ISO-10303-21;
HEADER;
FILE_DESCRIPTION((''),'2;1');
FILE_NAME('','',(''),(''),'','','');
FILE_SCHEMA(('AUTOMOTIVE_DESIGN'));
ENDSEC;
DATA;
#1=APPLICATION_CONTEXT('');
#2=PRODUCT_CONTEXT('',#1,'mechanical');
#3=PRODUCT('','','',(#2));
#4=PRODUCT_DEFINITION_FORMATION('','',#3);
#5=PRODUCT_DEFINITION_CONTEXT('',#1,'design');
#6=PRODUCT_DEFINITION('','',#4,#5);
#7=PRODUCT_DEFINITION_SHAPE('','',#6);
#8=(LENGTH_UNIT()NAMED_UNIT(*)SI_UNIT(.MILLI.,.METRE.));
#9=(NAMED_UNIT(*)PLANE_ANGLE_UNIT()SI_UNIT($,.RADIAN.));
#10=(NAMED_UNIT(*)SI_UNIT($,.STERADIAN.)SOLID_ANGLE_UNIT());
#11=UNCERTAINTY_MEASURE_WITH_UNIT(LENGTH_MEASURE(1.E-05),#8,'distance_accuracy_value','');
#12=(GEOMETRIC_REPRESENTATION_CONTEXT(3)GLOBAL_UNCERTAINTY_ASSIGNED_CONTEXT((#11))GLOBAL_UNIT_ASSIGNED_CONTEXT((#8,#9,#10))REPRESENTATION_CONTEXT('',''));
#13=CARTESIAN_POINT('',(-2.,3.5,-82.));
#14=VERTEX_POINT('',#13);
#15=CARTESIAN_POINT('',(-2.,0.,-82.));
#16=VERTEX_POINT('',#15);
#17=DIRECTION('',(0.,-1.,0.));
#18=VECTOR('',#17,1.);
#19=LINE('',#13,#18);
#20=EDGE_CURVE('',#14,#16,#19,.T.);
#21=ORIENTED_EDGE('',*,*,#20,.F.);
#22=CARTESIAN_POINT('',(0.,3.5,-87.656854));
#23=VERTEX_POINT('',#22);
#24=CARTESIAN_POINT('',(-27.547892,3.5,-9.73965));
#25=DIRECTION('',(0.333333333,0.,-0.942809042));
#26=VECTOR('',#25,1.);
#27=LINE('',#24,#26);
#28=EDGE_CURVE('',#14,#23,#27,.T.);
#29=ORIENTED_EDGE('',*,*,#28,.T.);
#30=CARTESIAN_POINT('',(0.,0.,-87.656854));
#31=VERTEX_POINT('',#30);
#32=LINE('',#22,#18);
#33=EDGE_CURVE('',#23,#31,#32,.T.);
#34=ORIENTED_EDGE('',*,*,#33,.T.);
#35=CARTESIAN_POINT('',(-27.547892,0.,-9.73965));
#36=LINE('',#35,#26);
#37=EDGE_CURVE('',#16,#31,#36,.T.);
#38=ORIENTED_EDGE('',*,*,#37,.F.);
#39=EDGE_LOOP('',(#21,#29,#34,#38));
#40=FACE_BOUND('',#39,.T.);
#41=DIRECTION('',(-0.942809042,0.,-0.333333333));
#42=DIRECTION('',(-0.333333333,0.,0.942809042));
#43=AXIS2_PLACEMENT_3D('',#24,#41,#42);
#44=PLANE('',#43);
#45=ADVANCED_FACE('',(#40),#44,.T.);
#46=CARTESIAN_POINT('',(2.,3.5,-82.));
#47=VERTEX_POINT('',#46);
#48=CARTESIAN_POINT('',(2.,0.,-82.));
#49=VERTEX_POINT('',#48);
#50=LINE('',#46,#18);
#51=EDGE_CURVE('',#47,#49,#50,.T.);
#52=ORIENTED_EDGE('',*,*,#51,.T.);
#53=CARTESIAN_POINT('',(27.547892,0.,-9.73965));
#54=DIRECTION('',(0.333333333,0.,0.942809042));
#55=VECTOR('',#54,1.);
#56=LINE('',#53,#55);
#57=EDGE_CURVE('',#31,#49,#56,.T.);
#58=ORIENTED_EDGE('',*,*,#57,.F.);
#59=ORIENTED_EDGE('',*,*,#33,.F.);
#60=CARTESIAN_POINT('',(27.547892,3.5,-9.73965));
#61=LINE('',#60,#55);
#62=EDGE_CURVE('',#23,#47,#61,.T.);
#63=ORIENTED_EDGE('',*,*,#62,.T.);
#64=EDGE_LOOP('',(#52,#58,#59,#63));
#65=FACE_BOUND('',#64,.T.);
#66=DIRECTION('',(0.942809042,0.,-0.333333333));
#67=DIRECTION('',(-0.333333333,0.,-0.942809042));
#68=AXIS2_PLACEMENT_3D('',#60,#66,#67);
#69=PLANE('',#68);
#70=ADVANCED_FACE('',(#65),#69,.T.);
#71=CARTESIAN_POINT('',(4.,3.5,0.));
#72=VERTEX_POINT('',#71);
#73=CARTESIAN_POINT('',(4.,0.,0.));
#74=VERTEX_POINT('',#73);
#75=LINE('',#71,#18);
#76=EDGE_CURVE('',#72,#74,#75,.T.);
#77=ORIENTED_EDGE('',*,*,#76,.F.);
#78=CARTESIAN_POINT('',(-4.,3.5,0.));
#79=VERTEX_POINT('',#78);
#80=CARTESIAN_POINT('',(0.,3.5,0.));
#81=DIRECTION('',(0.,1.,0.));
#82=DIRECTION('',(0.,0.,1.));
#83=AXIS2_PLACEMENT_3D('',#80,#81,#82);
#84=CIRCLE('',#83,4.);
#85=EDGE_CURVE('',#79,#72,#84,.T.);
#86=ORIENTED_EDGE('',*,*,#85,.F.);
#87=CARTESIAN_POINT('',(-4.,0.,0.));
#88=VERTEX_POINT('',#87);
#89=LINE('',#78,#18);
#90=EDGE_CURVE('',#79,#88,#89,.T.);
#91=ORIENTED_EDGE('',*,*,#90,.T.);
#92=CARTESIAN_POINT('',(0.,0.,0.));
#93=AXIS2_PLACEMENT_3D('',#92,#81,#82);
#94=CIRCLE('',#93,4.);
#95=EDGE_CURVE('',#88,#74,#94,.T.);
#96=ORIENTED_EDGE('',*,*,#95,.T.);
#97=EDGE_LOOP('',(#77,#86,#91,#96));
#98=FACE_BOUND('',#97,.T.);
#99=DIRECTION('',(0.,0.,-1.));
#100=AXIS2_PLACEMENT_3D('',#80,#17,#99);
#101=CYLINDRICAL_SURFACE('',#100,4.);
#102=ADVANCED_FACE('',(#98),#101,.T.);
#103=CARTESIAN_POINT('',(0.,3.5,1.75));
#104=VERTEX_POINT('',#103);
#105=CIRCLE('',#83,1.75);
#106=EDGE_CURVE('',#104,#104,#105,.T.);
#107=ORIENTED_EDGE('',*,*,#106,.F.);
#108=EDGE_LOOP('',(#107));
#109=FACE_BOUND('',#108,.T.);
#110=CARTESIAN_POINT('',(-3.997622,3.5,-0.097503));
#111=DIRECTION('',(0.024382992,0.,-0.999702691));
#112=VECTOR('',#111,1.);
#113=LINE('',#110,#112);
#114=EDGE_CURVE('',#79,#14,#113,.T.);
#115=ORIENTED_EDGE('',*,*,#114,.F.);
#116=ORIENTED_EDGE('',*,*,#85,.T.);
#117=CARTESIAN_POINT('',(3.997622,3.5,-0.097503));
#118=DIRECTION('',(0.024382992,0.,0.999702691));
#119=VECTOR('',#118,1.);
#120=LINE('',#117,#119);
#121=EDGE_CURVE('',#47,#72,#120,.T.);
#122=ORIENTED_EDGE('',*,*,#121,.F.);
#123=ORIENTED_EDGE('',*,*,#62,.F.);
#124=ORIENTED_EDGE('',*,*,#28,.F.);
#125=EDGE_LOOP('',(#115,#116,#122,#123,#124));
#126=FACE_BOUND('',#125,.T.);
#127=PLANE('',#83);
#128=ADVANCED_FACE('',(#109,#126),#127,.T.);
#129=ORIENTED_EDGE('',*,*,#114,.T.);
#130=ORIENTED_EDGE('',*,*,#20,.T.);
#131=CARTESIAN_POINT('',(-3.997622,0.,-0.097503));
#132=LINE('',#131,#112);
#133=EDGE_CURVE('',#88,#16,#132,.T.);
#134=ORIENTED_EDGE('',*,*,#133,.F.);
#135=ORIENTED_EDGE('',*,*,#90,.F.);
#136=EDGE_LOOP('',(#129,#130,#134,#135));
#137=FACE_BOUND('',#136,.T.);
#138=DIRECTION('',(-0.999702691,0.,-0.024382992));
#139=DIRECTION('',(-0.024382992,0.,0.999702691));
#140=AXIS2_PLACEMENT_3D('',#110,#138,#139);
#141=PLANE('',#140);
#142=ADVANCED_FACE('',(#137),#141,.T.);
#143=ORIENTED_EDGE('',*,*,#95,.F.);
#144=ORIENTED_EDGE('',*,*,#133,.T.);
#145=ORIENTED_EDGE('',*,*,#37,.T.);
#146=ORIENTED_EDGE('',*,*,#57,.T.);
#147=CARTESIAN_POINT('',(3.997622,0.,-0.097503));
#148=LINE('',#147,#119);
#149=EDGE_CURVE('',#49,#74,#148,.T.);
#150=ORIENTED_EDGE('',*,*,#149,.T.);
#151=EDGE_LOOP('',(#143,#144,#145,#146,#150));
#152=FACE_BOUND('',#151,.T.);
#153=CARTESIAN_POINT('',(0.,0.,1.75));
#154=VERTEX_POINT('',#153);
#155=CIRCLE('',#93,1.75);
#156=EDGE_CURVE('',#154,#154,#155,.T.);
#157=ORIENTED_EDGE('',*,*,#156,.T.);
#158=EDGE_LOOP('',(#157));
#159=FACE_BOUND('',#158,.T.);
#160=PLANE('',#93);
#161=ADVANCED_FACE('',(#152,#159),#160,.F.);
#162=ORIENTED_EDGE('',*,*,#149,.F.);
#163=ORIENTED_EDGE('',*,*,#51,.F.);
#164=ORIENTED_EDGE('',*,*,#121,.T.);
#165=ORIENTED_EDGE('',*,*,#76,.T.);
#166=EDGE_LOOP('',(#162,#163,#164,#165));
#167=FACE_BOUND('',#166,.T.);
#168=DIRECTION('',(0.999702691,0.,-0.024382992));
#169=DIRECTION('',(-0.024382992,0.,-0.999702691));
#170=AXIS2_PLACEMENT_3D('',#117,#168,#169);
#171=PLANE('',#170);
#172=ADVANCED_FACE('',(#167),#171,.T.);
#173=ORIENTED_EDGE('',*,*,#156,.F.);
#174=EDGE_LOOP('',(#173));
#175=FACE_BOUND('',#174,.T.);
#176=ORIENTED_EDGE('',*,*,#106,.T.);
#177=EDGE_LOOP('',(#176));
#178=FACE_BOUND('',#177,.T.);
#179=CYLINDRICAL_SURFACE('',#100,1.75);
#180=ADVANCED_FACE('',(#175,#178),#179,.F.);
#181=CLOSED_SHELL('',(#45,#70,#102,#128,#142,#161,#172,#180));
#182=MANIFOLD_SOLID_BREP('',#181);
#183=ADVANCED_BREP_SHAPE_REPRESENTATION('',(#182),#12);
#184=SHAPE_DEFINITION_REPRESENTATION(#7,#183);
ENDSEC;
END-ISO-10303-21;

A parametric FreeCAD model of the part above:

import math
import FreeCAD as App
import Part
import Sketcher
from FreeCAD import Vector
Q = App.Units.Quantity

doc = App.newDocument("Part")
body = doc.addObject("PartDesign::Body", "Body")

# Sketch on XZ plane
sketch1 = body.newObject("Sketcher::SketchObject", "Sketch")
sketch1.AttachmentSupport = (doc.getObject("XZ_Plane"), [""])
sketch1.MapMode = "FlatFace"
sketch1.addGeometry([
    Part.LineSegment(Vector(-2, -82, 0), Vector(-4, -0.2, 0)),  # 0
    Part.LineSegment(Vector(-4, -0.2, 0), Vector(-4, 0, 0)),  # 1
    Part.ArcOfCircle(Part.Circle(Vector(0, 0, 0), Vector(0, 0, 1), 4), math.radians(0), math.radians(180)),  # 2
    Part.LineSegment(Vector(4, 0, 0), Vector(4, -0.2, 0)),  # 3
    Part.LineSegment(Vector(4, -0.2, 0), Vector(2, -82, 0)),  # 4
    Part.LineSegment(Vector(2, -82, 0), Vector(0, -87.66, 0)),  # 5
    Part.LineSegment(Vector(0, -87.66, 0), Vector(-2, -82, 0)),  # 6
    Part.Circle(Vector(0, 0, 0), Vector(0, 0, 1), 1.75),  # 7
], False)
sketch1.addConstraint([
    Sketcher.Constraint("Coincident", 0, 2, 1, 1),
    Sketcher.Constraint("Coincident", 1, 2, 2, 2),
    Sketcher.Constraint("Coincident", 2, 1, 3, 1),
    Sketcher.Constraint("Coincident", 3, 2, 4, 1),
    Sketcher.Constraint("Coincident", 4, 2, 5, 1),
    Sketcher.Constraint("Coincident", 5, 2, 6, 1),
    Sketcher.Constraint("Coincident", 6, 2, 0, 1),
    Sketcher.Constraint("Coincident", 2, 3, -1, 1),
    Sketcher.Constraint("Coincident", 7, 3, -1, 1),
    Sketcher.Constraint("Symmetric", 0, 2, 3, 2, -2),
    Sketcher.Constraint("Symmetric", 4, 2, 6, 2, -2),
    Sketcher.Constraint("PointOnObject", 1, 2, -1),
    Sketcher.Constraint("PointOnObject", 2, 1, -1),
    Sketcher.Constraint("PointOnObject", 5, 2, -2),
    Sketcher.Constraint("Parallel", 0, 1),
    Sketcher.Constraint("Radius", 2, Q("4 mm")),
    Sketcher.Constraint("Diameter", 7, Q("3.5 mm")),
    Sketcher.Constraint("Distance", 5, Q("6 mm")),
    Sketcher.Constraint("DistanceX", -1, 1, 4, 2, Q("2 mm")),
    Sketcher.Constraint("DistanceY", 4, 2, -1, 1, Q("82 mm")),
    Sketcher.Constraint("DistanceY", 5, 2, 0, 2, Q("87.461848 mm")),
])
pad1 = body.newObject("PartDesign::Pad", "Pad")
pad1.Profile = sketch1
pad1.Length = 3.5
pad1.Reversed = True

doc.recompute()
